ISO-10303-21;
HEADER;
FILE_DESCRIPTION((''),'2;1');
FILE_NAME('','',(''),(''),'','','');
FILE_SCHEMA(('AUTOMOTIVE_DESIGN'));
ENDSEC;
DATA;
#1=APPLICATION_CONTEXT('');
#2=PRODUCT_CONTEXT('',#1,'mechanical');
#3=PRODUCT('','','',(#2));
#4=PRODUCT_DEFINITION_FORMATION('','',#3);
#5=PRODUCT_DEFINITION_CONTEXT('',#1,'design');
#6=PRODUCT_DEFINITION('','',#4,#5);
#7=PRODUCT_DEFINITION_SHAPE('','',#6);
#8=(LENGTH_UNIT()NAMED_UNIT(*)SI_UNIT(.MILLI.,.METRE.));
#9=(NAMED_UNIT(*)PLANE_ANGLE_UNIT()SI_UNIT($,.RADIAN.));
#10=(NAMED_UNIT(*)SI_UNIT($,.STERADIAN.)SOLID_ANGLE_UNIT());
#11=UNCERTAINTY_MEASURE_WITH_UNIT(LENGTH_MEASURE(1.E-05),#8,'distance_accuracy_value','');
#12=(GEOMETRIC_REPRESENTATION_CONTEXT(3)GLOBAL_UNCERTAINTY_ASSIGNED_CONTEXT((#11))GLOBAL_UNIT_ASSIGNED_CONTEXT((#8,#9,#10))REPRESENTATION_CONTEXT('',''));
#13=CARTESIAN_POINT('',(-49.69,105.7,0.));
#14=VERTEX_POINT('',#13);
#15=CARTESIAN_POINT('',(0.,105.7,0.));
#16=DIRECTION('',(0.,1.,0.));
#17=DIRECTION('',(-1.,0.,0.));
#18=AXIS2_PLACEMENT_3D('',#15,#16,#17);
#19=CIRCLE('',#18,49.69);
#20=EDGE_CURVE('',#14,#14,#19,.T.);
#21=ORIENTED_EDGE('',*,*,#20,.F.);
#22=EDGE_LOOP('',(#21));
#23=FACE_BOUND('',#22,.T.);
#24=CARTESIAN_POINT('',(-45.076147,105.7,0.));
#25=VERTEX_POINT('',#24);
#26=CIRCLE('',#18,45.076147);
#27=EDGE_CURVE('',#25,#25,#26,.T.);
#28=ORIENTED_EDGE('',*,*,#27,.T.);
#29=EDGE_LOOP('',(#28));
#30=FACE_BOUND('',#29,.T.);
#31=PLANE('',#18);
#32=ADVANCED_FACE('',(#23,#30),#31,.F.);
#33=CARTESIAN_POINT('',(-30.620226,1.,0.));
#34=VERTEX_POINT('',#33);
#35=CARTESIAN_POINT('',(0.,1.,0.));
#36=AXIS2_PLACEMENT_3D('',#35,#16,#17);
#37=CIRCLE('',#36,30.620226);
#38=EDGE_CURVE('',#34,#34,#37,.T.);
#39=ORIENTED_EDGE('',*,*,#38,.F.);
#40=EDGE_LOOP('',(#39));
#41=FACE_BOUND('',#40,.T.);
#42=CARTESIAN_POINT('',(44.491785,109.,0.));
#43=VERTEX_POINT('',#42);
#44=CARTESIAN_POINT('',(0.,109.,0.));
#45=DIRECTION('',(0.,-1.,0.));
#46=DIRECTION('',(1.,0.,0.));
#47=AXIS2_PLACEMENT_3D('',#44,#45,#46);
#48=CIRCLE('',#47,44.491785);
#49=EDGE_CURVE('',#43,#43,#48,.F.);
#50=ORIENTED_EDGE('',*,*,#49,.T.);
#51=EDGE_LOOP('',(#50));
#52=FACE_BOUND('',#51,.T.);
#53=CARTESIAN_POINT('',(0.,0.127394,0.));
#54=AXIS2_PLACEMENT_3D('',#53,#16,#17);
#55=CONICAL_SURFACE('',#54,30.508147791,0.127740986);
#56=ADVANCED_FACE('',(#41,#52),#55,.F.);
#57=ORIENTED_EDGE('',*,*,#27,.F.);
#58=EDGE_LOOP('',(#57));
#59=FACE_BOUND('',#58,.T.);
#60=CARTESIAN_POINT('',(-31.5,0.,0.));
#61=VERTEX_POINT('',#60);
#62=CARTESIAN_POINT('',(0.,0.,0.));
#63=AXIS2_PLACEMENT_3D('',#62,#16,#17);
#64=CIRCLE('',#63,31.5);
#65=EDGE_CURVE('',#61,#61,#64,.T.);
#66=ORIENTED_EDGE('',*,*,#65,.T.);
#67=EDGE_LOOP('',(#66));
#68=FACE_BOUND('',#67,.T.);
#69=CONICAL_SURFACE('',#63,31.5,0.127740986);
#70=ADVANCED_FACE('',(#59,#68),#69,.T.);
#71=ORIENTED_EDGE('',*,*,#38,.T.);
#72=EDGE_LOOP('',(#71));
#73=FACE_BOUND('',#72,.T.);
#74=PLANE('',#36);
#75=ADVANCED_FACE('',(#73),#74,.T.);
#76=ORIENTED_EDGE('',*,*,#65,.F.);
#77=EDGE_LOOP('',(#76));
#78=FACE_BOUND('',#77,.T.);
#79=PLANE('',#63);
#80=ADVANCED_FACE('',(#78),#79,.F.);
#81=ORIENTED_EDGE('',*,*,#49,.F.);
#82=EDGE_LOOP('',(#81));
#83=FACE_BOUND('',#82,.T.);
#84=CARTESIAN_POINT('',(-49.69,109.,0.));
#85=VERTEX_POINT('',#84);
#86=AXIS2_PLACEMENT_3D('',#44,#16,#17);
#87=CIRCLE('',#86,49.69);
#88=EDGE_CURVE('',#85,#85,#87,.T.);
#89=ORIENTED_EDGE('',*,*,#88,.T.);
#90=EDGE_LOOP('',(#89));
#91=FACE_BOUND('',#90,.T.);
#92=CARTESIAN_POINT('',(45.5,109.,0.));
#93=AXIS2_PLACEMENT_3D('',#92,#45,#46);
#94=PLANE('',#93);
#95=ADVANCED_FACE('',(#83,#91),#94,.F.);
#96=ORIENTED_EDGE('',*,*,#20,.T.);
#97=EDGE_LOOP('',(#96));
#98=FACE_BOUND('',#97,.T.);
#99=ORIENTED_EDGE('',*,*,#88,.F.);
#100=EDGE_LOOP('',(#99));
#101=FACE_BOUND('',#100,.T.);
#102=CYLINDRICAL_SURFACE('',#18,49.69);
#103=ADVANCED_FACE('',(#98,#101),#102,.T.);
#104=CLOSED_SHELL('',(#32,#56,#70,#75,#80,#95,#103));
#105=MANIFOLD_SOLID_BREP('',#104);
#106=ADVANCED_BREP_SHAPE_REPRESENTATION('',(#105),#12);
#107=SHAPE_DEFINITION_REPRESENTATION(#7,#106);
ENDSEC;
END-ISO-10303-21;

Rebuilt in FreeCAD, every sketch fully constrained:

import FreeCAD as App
import Part
import Sketcher

V = App.Vector


def faces_at(feature, points):
    """Names of the faces that lie closest to the given points."""
    faces = feature.Shape.Faces
    near = lambda p: min(range(len(faces)), key=lambda i: faces[i].distToShape(Part.Vertex(*p))[0])
    return sorted({f"Face{near(p) + 1}" for p in points})


def add_polygon(sketch, points):
    """Adds a closed chain of lines whose ends are joined by coincident constraints."""
    first, n = sketch.GeometryCount, len(points)
    for a, b in zip(points, points[1:] + points[:1]):
        sketch.addGeometry(Part.LineSegment(App.Vector(*a, 0), App.Vector(*b, 0)), False)
    for i in range(n):
        sketch.addConstraint(Sketcher.Constraint("Coincident", first + i, 2, first + (i + 1) % n, 1))

doc = App.newDocument("Part")
body = doc.addObject("PartDesign::Body", "Body")

# Sketch on XY plane
sketch1 = body.newObject("Sketcher::SketchObject", "Sketch")
sketch1.AttachmentSupport = (doc.getObject("XY_Plane"), [""])
sketch1.MapMode = "FlatFace"
add_polygon(sketch1, [(0, 0), (32, 0), (46, 109), (0, 109)])  # lines 0-3
sketch1.addConstraint([
    Sketcher.Constraint("Horizontal", 0),
    Sketcher.Constraint("Horizontal", 2),
    Sketcher.Constraint("Vertical", 3),
    Sketcher.Constraint("Coincident", 3, 2, -1, 1),
    Sketcher.Constraint("DistanceY", 3, 2, 3, 1, 109.0),
    Sketcher.Constraint("DistanceX", 0, 1, 0, 2, 31.5),
    Sketcher.Constraint("DistanceX", 2, 2, 2, 1, 45.5),
])
revolution = body.newObject("PartDesign::Revolution", "Revolution")
revolution.Profile = sketch1
revolution.ReferenceAxis = (sketch1, ["V_Axis"])
revolution.Angle = 360
doc.recompute()

thickness = body.newObject("PartDesign::Thickness", "Thickness")
thickness.Base = (revolution, faces_at(revolution, [(0, 109, 0)]))
thickness.Value = 1
thickness.Reversed = True
thickness.Join = "Intersection"

# Sketch on XZ plane
sketch2 = body.newObject("Sketcher::SketchObject", "Sketch001")
sketch2.AttachmentSupport = (doc.getObject("XZ_Plane"), [""])
sketch2.MapMode = "FlatFace"
sketch2.AttachmentOffset = App.Placement(V(0, 0, -109), App.Rotation())
sketch2.addGeometry([
    Part.Circle(V(0, 0, 0), V(0, 0, 1), 50),
    Part.Circle(V(0, 0, 0), V(0, 0, 1), 44),
], False)
sketch2.addConstraint([
    Sketcher.Constraint("Coincident", 0, 3, -1, 1),
    Sketcher.Constraint("Coincident", 1, 3, -1, 1),
    Sketcher.Constraint("Diameter", 0, 99.38),
    Sketcher.Constraint("Diameter", 1, 88.983571),
])
pad1 = body.newObject("PartDesign::Pad", "Pad")
pad1.Profile = sketch2
pad1.Length = 3.3

doc.recompute()
